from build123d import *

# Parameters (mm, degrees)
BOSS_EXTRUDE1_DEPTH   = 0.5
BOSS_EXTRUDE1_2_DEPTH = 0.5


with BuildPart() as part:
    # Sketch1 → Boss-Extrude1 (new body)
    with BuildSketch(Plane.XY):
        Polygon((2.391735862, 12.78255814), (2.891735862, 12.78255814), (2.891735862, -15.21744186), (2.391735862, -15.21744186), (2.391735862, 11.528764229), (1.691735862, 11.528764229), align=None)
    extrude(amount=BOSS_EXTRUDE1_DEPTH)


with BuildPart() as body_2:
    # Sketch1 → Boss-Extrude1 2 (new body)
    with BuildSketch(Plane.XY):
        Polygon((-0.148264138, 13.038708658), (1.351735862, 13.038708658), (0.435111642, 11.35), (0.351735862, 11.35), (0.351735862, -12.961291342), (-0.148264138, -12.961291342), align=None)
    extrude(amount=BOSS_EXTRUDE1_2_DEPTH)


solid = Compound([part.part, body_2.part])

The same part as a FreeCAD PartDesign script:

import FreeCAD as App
import Part
import Sketcher
from FreeCAD import Vector
Q = App.Units.Quantity

doc = App.newDocument("Part")
body = doc.addObject("PartDesign::Body", "Body")

# Sketch on XY plane
sketch1 = body.newObject("Sketcher::SketchObject", "Sketch")
sketch1.AttachmentSupport = (doc.getObject("XY_Plane"), [""])
sketch1.MapMode = "FlatFace"
sketch1.addGeometry([
    Part.LineSegment(Vector(2.9, 12.8, 0), Vector(2.4, 12.8, 0)),  # 0
    Part.LineSegment(Vector(2.4, 12.8, 0), Vector(1.7, 11.5, 0)),  # 1
    Part.LineSegment(Vector(1.7, 11.5, 0), Vector(2.4, 11.5, 0)),  # 2
    Part.LineSegment(Vector(2.4, 11.5, 0), Vector(2.4, -15.2, 0)),  # 3
    Part.LineSegment(Vector(2.4, -15.2, 0), Vector(2.9, -15.2, 0)),  # 4
    Part.LineSegment(Vector(2.9, -15.2, 0), Vector(2.9, 12.8, 0)),  # 5
], False)
sketch1.addConstraint([
    Sketcher.Constraint("Coincident", 0, 2, 1, 1),
    Sketcher.Constraint("Coincident", 1, 2, 2, 1),
    Sketcher.Constraint("Coincident", 2, 2, 3, 1),
    Sketcher.Constraint("Coincident", 3, 2, 4, 1),
    Sketcher.Constraint("Coincident", 4, 2, 5, 1),
    Sketcher.Constraint("Coincident", 5, 2, 0, 1),
    Sketcher.Constraint("Horizontal", 0),
    Sketcher.Constraint("Horizontal", 2),
    Sketcher.Constraint("Vertical", 3),
    Sketcher.Constraint("Horizontal", 4),
    Sketcher.Constraint("Vertical", 5),
    Sketcher.Constraint("Vertical", 0, 2, 2, 2),
    Sketcher.Constraint("DistanceY", 5, 1, 5, 2, Q("28 mm")),
    Sketcher.Constraint("DistanceX", 0, 2, 0, 1, Q("0.5 mm")),
    Sketcher.Constraint("DistanceX", 2, 1, 2, 2, Q("0.7 mm")),
    Sketcher.Constraint("DistanceY", 3, 2, 3, 1, Q("26.746206 mm")),
    Sketcher.Constraint("DistanceY", -1, 1, 0, 2, Q("12.782558 mm")),
    Sketcher.Constraint("DistanceX", -1, 1, 0, 2, Q("2.391736 mm")),
])
pad1 = body.newObject("PartDesign::Pad", "Pad")
pad1.Profile = sketch1
pad1.Length = 0.5
body2 = doc.addObject("PartDesign::Body", "Body001")

# Sketch on XY plane
sketch2 = body2.newObject("Sketcher::SketchObject", "Sketch001")
sketch2.AttachmentSupport = (doc.getObject("XY_Plane001"), [""])
sketch2.MapMode = "FlatFace"
sketch2.addGeometry([
    Part.LineSegment(Vector(1.35, 13.04, 0), Vector(-0.15, 13.04, 0)),  # 0
    Part.LineSegment(Vector(-0.15, 13.04, 0), Vector(-0.15, -12.96, 0)),  # 1
    Part.LineSegment(Vector(-0.15, -12.96, 0), Vector(0.35, -12.96, 0)),  # 2
    Part.LineSegment(Vector(0.35, -12.96, 0), Vector(0.35, 11.35, 0)),  # 3
    Part.LineSegment(Vector(0.35, 11.35, 0), Vector(0.44, 11.35, 0)),  # 4
    Part.LineSegment(Vector(0.44, 11.35, 0), Vector(1.35, 13.04, 0)),  # 5
], False)
sketch2.addConstraint([
    Sketcher.Constraint("Coincident", 0, 2, 1, 1),
    Sketcher.Constraint("Coincident", 1, 2, 2, 1),
    Sketcher.Constraint("Coincident", 2, 2, 3, 1),
    Sketcher.Constraint("Coincident", 3, 2, 4, 1),
    Sketcher.Constraint("Coincident", 4, 2, 5, 1),
    Sketcher.Constraint("Coincident", 5, 2, 0, 1),
    Sketcher.Constraint("Horizontal", 0),
    Sketcher.Constraint("Vertical", 1),
    Sketcher.Constraint("Horizontal", 2),
    Sketcher.Constraint("Vertical", 3),
    Sketcher.Constraint("Horizontal", 4),
    Sketcher.Constraint("DistanceY", 1, 2, 1, 1, Q("26 mm")),
    Sketcher.Constraint("DistanceX", 0, 2, 0, 1, Q("1.5 mm")),
    Sketcher.Constraint("DistanceX", 2, 1, 2, 2, Q("0.5 mm")),
    Sketcher.Constraint("DistanceY", -1, 1, 3, 2, Q("11.35 mm")),
    Sketcher.Constraint("DistanceY", 3, 1, 3, 2, Q("24.311291 mm")),
    Sketcher.Constraint("Distance", 5, Q("1.921441 mm")),
    Sketcher.Constraint("DistanceX", -1, 1, 4, 2, Q("0.435112 mm")),
])
pad2 = body2.newObject("PartDesign::Pad", "Pad001")
pad2.Profile = sketch2
pad2.Length = 0.5

doc.recompute()
